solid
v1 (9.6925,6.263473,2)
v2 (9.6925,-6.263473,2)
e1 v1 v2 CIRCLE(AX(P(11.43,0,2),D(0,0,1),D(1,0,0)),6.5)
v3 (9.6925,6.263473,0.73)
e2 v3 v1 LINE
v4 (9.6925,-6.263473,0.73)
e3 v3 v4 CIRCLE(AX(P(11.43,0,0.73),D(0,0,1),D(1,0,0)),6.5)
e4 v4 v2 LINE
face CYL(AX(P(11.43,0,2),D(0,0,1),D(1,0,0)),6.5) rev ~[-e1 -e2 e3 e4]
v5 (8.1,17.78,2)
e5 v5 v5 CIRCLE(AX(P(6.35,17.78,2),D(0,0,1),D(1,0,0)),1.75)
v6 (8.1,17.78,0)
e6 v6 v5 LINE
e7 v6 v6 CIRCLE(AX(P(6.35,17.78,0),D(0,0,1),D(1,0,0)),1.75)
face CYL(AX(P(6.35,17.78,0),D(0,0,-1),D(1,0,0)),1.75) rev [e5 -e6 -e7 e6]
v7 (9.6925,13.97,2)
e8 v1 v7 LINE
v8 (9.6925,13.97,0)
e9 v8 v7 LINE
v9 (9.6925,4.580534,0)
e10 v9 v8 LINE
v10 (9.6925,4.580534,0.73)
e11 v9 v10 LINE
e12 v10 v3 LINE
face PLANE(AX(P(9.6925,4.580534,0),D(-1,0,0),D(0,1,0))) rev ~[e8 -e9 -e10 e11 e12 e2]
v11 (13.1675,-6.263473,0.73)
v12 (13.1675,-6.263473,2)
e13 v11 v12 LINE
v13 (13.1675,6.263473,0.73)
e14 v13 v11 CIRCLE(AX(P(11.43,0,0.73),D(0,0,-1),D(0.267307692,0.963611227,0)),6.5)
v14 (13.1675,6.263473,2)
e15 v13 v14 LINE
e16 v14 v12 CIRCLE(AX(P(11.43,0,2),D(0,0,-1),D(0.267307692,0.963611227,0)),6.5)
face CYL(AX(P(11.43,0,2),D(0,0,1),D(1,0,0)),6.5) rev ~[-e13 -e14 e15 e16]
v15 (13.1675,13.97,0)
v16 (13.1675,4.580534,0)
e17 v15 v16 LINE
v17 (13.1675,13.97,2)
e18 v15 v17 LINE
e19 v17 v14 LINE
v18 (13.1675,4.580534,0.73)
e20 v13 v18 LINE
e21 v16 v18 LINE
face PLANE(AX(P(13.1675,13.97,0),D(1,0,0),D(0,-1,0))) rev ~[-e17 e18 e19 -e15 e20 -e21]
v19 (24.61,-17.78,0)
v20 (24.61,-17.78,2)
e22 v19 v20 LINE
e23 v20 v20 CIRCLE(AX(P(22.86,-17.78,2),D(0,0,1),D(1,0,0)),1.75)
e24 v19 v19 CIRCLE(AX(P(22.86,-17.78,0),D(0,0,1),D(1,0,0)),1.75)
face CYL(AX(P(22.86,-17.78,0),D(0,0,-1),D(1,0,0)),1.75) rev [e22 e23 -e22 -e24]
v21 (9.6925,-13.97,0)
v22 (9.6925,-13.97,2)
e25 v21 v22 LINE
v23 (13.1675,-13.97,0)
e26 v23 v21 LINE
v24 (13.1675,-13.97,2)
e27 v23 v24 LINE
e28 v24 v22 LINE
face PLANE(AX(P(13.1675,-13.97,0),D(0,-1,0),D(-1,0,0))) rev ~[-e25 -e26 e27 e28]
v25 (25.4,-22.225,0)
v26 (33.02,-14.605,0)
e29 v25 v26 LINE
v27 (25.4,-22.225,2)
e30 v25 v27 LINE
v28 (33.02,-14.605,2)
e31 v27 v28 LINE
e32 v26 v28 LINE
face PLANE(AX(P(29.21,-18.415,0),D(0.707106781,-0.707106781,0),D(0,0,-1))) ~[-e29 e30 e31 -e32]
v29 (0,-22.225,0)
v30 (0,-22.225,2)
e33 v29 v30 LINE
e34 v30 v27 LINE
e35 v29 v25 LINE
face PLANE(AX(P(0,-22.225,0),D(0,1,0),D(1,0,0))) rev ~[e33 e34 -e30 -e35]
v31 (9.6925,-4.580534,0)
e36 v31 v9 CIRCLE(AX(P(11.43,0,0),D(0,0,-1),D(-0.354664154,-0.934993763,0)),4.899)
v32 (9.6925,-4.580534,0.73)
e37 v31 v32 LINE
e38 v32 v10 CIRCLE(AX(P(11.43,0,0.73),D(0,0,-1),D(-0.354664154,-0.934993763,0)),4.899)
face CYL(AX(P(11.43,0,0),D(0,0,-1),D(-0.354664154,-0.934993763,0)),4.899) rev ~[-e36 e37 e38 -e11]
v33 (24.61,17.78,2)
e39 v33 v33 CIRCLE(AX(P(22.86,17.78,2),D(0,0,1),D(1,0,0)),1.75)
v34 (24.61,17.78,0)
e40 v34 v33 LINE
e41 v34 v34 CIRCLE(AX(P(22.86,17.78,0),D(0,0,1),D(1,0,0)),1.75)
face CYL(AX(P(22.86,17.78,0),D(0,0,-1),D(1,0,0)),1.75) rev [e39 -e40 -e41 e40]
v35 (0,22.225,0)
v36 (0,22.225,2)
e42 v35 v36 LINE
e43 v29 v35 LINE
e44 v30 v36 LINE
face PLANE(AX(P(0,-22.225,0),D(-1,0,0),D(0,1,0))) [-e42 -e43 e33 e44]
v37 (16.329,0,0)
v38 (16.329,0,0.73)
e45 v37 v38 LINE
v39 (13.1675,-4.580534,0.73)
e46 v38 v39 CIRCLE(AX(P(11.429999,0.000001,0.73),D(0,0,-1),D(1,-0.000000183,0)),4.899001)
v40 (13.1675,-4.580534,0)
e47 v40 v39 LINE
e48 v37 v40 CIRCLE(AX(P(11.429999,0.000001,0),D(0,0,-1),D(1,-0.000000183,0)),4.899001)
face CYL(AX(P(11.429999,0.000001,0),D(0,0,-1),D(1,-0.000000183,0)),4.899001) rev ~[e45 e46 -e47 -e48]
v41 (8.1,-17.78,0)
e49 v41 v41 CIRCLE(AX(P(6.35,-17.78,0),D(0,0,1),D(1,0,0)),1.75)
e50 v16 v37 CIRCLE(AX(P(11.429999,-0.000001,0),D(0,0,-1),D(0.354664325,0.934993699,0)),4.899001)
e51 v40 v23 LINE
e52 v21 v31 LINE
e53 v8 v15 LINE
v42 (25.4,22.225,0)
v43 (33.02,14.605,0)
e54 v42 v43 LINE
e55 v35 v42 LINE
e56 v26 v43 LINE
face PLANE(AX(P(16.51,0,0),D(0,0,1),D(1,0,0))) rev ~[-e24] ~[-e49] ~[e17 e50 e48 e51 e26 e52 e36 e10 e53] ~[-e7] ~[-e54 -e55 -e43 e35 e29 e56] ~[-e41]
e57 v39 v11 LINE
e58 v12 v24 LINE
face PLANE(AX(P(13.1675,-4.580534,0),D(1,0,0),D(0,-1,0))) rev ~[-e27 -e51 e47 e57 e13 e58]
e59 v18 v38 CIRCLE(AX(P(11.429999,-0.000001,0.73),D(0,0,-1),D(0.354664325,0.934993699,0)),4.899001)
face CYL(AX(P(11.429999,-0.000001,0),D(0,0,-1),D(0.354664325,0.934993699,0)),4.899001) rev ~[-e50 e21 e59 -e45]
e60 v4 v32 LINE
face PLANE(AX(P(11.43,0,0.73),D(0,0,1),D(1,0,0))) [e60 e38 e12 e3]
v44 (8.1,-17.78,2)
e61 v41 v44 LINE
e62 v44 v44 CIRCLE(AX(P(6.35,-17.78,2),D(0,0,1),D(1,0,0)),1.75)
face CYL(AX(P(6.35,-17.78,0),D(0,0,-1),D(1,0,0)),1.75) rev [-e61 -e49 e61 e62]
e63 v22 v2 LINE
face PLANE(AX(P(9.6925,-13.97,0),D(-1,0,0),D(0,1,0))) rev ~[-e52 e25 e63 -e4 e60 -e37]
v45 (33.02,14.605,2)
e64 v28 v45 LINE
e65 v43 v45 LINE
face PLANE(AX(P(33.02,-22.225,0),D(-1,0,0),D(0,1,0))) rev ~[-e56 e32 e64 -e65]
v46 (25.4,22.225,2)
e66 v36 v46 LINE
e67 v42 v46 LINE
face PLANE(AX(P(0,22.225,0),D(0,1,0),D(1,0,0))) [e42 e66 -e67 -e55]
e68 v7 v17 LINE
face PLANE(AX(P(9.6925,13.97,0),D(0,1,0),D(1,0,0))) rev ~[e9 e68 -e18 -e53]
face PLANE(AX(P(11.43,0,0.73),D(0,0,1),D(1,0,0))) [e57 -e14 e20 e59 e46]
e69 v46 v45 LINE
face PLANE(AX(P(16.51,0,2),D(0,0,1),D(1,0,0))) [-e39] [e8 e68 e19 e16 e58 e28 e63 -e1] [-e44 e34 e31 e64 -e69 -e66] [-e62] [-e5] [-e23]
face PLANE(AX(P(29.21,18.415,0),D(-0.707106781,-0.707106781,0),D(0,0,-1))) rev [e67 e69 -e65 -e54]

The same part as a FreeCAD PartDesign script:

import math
import FreeCAD as App
import Part
import Sketcher
Q = App.Units.Quantity


def edges_at(feature, points):
    """Names of the edges that pass closest to the given points."""
    edges = feature.Shape.Edges
    near = lambda p: min(range(len(edges)), key=lambda i: edges[i].distToShape(Part.Vertex(*p))[0])
    return sorted({f"Edge{near(p) + 1}" for p in points})


def add_polygon(sketch, points):
    """Adds a closed chain of lines whose ends are joined by coincident constraints."""
    first, n = sketch.GeometryCount, len(points)
    for a, b in zip(points, points[1:] + points[:1]):
        sketch.addGeometry(Part.LineSegment(App.Vector(*a, 0), App.Vector(*b, 0)), False)
    for i in range(n):
        sketch.addConstraint(Sketcher.Constraint("Coincident", first + i, 2, first + (i + 1) % n, 1))

doc = App.newDocument("Part")
body = doc.addObject("PartDesign::Body", "Body")

sketch1 = body.newObject("Sketcher::SketchObject", "Sketch")
sketch1.AttachmentSupport = (doc.getObject("XY_Plane"), [""])
sketch1.MapMode = "FlatFace"
add_polygon(sketch1, [(0, 22.225), (0, -22.225), (33.02, -22.225), (33.02, 22.225)])
sketch1.addGeometry(Part.Circle(App.Vector(6.35, -17.78, 0), App.Vector(0, 0, 1), 1.75), False)
sketch1.addGeometry(Part.Circle(App.Vector(22.86, -17.78, 0), App.Vector(0, 0, 1), 1.75), False)
sketch1.addGeometry(Part.LineSegment(App.Vector(13.1675, 13.97, 0), App.Vector(13.1675, 4.580534, 0)), False)
sketch1.addGeometry(Part.ArcOfCircle(Part.Circle(App.Vector(11.429999, -0.000001, 0), App.Vector(0, 0, 1), 4.899001), math.radians(0.00001), math.radians(69.227127)), False)
sketch1.addGeometry(Part.ArcOfCircle(Part.Circle(App.Vector(11.429999, 0.000001, 0), App.Vector(0, 0, 1), 4.899001), math.radians(-69.227127), math.radians(-0.00001)), False)
sketch1.addGeometry(Part.LineSegment(App.Vector(13.1675, -4.580534, 0), App.Vector(13.1675, -13.97, 0)), False)
sketch1.addGeometry(Part.LineSegment(App.Vector(13.1675, -13.97, 0), App.Vector(9.6925, -13.97, 0)), False)
sketch1.addGeometry(Part.LineSegment(App.Vector(9.6925, -13.97, 0), App.Vector(9.6925, -4.580534, 0)), False)
sketch1.addGeometry(Part.ArcOfCircle(Part.Circle(App.Vector(11.43, 0, 0), App.Vector(0, 0, 1), 4.899), math.radians(110.772863), math.radians(249.227137)), False)
sketch1.addGeometry(Part.LineSegment(App.Vector(9.6925, 4.580534, 0), App.Vector(9.6925, 13.97, 0)), False)
sketch1.addGeometry(Part.LineSegment(App.Vector(9.6925, 13.97, 0), App.Vector(13.1675, 13.97, 0)), False)
sketch1.addGeometry(Part.Circle(App.Vector(6.35, 17.78, 0), App.Vector(0, 0, 1), 1.75), False)
sketch1.addGeometry(Part.Circle(App.Vector(22.86, 17.78, 0), App.Vector(0, 0, 1), 1.75), False)
sketch1.addConstraint(Sketcher.Constraint("Coincident", 6, 2, 7, 2))
sketch1.addConstraint(Sketcher.Constraint("Tangent", 7, 1, 8, 2))
sketch1.addConstraint(Sketcher.Constraint("Coincident", 8, 1, 9, 1))
sketch1.addConstraint(Sketcher.Constraint("Coincident", 9, 2, 10, 1))
sketch1.addConstraint(Sketcher.Constraint("Coincident", 10, 2, 11, 1))
sketch1.addConstraint(Sketcher.Constraint("Coincident", 11, 2, 12, 2))
sketch1.addConstraint(Sketcher.Constraint("Coincident", 12, 1, 13, 1))
sketch1.addConstraint(Sketcher.Constraint("Coincident", 13, 2, 14, 1))
sketch1.addConstraint(Sketcher.Constraint("Coincident", 14, 2, 6, 1))
sketch1.addConstraint(Sketcher.Constraint("Vertical", 0))
sketch1.addConstraint(Sketcher.Constraint("Horizontal", 1))
sketch1.addConstraint(Sketcher.Constraint("Vertical", 2))
sketch1.addConstraint(Sketcher.Constraint("Horizontal", 3))
sketch1.addConstraint(Sketcher.Constraint("Vertical", 6))
sketch1.addConstraint(Sketcher.Constraint("Vertical", 9))
sketch1.addConstraint(Sketcher.Constraint("Horizontal", 10))
sketch1.addConstraint(Sketcher.Constraint("Vertical", 11))
sketch1.addConstraint(Sketcher.Constraint("Vertical", 13))
sketch1.addConstraint(Sketcher.Constraint("Horizontal", 14))
sketch1.addConstraint(Sketcher.Constraint("Coincident", 12, 3, 7, 3))
sketch1.addConstraint(Sketcher.Constraint("Equal", 4, 5))
sketch1.addConstraint(Sketcher.Constraint("Equal", 7, 8))
sketch1.addConstraint(Sketcher.Constraint("Equal", 8, 12))
sketch1.addConstraint(Sketcher.Constraint("Equal", 5, 15))
sketch1.addConstraint(Sketcher.Constraint("Equal", 15, 16))
sketch1.addConstraint(Sketcher.Constraint("Symmetric", 0, 2, 3, 2, -1, 1))
sketch1.addConstraint(Sketcher.Constraint("Symmetric", 4, 3, 15, 3, -1))
sketch1.addConstraint(Sketcher.Constraint("Symmetric", 5, 3, 16, 3, -1))
sketch1.addConstraint(Sketcher.Constraint("Symmetric", 6, 2, 8, 1, -1))
sketch1.addConstraint(Sketcher.Constraint("Symmetric", 10, 2, 13, 2, -1))
sketch1.addConstraint(Sketcher.Constraint("PointOnObject", 7, 1, -1))
sketch1.addConstraint(Sketcher.Constraint("Horizontal", 4, 3, 5, 3))
sketch1.addConstraint(Sketcher.Constraint("Horizontal", 8, 1, 11, 2))
sketch1.addConstraint(Sketcher.Constraint("DistanceX", 1, 1, 1, 2, Q("1.3 in")))
sketch1.addConstraint(Sketcher.Constraint("DistanceY", 0, 2, 0, 1, Q("1.75 in")))
sketch1.addConstraint(Sketcher.Constraint("DistanceY", 4, 3, -1, 1, Q("0.7 in")))
sketch1.addConstraint(Sketcher.Constraint("DistanceX", -1, 1, 5, 3, Q("0.9 in")))
sketch1.addConstraint(Sketcher.Constraint("DistanceX", 4, 3, 7, 3, Q("0.2 in")))
sketch1.addConstraint(Sketcher.Constraint("Diameter", 4, 3.5))
sketch1.addConstraint(Sketcher.Constraint("DistanceX", -1, 1, 4, 3, Q("0.25 in")))
sketch1.addConstraint(Sketcher.Constraint("DistanceY", 9, 2, -1, 1, Q("0.55 in")))
sketch1.addConstraint(Sketcher.Constraint("Radius", 7, 4.899001))
sketch1.addConstraint(Sketcher.Constraint("DistanceX", 10, 2, 10, 1, 3.475))
pad1 = body.newObject("PartDesign::Pad", "Pad")
pad1.Profile = sketch1
pad1.Length = 2
doc.recompute()

chamfer = body.newObject("PartDesign::Chamfer", "Chamfer")
chamfer.Base = (pad1, edges_at(pad1, [(33.02, -22.225, 1), (33.02, 22.225, 1)]))
chamfer.Size = Q("0.3 in")

sketch2 = body.newObject("Sketcher::SketchObject", "Sketch001")
sketch2.AttachmentSupport = (doc.getObject("XY_Plane"), [""])
sketch2.MapMode = "FlatFace"
sketch2.AttachmentOffset = App.Placement(App.Vector(0, 0, 2), App.Rotation())
sketch2.addGeometry(Part.Circle(App.Vector(11.43, 0, 0), App.Vector(0, 0, 1), 6.5), False)
sketch2.addConstraint(Sketcher.Constraint("PointOnObject", 0, 3, -1))
sketch2.addConstraint(Sketcher.Constraint("Diameter", 0, 13.0))
sketch2.addConstraint(Sketcher.Constraint("DistanceX", -1, 1, 0, 3, Q("0.45 in")))
pocket1 = body.newObject("PartDesign::Pocket", "Pocket")
pocket1.Profile = sketch2
pocket1.Length = Q("0.05 in")

doc.recompute()
